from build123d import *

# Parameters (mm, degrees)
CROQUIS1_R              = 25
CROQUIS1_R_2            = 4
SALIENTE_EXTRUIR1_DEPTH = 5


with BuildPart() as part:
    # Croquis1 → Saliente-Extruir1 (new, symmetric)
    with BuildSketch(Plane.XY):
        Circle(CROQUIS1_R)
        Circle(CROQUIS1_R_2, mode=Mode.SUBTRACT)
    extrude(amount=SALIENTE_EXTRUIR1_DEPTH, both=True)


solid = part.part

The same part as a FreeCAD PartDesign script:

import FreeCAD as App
import Part
import Sketcher
from FreeCAD import Vector

doc = App.newDocument("Part")
params = doc.addObject("Spreadsheet::Sheet", "Params")
for row, (alias, value) in enumerate([
    ("sketch1_diameter", "50 mm"),
    ("sketch1_diameter2", "8 mm"),
    ("pad1_length", "10 mm"),
], start=1):
    params.set(f"A{row}", alias)
    params.set(f"B{row}", "=" + value)
    params.setAlias(f"B{row}", alias)

body = doc.addObject("PartDesign::Body", "Body")

sketch1 = doc.addObject("Sketcher::SketchObject", "Sketch")
body.addObject(sketch1)
sketch1.AttachmentSupport = (doc.XY_Plane, [""])
sketch1.MapMode = "FlatFace"
sketch1.addGeometry(Part.Circle(Vector(0, 0, 0), Vector(0, 0, 1), 25), False)
sketch1.addGeometry(Part.Circle(Vector(0, 0, 0), Vector(0, 0, 1), 4), False)
sketch1.addConstraint(Sketcher.Constraint("Coincident", 0, 3, -1, 1))
sketch1.addConstraint(Sketcher.Constraint("Coincident", 1, 3, -1, 1))
sketch1.addConstraint(Sketcher.Constraint("Diameter", 0, 50.0))
sketch1.addConstraint(Sketcher.Constraint("Diameter", 1, 8.0))
sketch1.setExpression("Constraints[2]", "Params.sketch1_diameter")
sketch1.setExpression("Constraints[3]", "Params.sketch1_diameter2")
pad1 = doc.addObject("PartDesign::Pad", "Pad")
body.addObject(pad1)
pad1.Profile = sketch1
pad1.setExpression("Length", "Params.pad1_length")
pad1.Midplane = True

doc.recompute()
